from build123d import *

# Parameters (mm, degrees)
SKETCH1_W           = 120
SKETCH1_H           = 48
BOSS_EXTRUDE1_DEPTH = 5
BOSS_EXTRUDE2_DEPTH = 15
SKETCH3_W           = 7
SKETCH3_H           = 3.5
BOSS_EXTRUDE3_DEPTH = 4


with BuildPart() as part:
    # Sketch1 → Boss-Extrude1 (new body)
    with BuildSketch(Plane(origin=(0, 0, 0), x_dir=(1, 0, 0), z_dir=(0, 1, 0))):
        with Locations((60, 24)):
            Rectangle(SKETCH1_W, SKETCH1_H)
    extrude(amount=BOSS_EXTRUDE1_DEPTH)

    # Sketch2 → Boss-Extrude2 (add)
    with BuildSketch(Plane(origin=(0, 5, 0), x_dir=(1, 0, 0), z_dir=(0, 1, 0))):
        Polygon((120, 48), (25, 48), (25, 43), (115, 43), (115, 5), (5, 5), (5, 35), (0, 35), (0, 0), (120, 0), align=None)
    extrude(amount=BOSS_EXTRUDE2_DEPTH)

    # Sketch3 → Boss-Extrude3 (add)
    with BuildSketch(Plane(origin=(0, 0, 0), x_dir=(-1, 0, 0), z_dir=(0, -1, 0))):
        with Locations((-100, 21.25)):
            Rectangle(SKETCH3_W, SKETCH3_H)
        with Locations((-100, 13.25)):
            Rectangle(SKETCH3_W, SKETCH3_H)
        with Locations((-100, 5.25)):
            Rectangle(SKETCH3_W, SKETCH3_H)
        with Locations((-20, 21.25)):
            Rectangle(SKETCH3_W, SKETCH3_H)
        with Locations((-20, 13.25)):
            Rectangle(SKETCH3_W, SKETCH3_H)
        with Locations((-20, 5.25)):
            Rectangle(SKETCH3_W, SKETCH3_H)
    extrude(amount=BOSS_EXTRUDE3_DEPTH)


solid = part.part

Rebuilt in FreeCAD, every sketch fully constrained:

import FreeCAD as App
import Part
import Sketcher


def add_polygon(sketch, points):
    """Adds a closed chain of lines whose ends are joined by coincident constraints."""
    first, n = sketch.GeometryCount, len(points)
    for a, b in zip(points, points[1:] + points[:1]):
        sketch.addGeometry(Part.LineSegment(App.Vector(*a, 0), App.Vector(*b, 0)), False)
    for i in range(n):
        sketch.addConstraint(Sketcher.Constraint("Coincident", first + i, 2, first + (i + 1) % n, 1))

doc = App.newDocument("Part")
body = doc.addObject("PartDesign::Body", "Body")

# Sketch on XZ plane
sketch1 = body.newObject("Sketcher::SketchObject", "Sketch")
sketch1.AttachmentSupport = (doc.getObject("XZ_Plane"), [""])
sketch1.MapMode = "FlatFace"
add_polygon(sketch1, [(0, -48), (0, 0), (120, 0), (120, -48)])  # lines 0-3
sketch1.addConstraint([
    Sketcher.Constraint("Vertical", 0),
    Sketcher.Constraint("Horizontal", 1),
    Sketcher.Constraint("Vertical", 2),
    Sketcher.Constraint("Horizontal", 3),
    Sketcher.Constraint("Coincident", 0, 2, -1, 1),
    Sketcher.Constraint("DistanceX", 1, 1, 1, 2, 120.0),
    Sketcher.Constraint("DistanceY", 0, 1, 0, 2, 48.0),
])
pad1 = body.newObject("PartDesign::Pad", "Pad")
pad1.Profile = sketch1
pad1.Length = 5
pad1.Reversed = True

# Sketch on XZ plane
sketch2 = body.newObject("Sketcher::SketchObject", "Sketch001")
sketch2.AttachmentSupport = (doc.getObject("XZ_Plane"), [""])
sketch2.MapMode = "FlatFace"
sketch2.AttachmentOffset = App.Placement(App.Vector(0, 0, -5), App.Rotation())
add_polygon(sketch2, [(120, -48), (25, -48), (25, -43), (115, -43), (115, -5), (5, -5), (5, -35), (0, -35), (0, 0), (120, 0)])  # lines 0-9
sketch2.addConstraint([
    Sketcher.Constraint("Horizontal", 0),
    Sketcher.Constraint("Vertical", 1),
    Sketcher.Constraint("Horizontal", 2),
    Sketcher.Constraint("Vertical", 3),
    Sketcher.Constraint("Horizontal", 4),
    Sketcher.Constraint("Vertical", 5),
    Sketcher.Constraint("Horizontal", 6),
    Sketcher.Constraint("Vertical", 7),
    Sketcher.Constraint("Horizontal", 8),
    Sketcher.Constraint("Vertical", 9),
    Sketcher.Constraint("Coincident", 7, 2, -1, 1),
    Sketcher.Constraint("Equal", 6, 1),
    Sketcher.Constraint("DistanceX", 0, 2, 0, 1, 95.0),
    Sketcher.Constraint("DistanceX", 2, 1, 2, 2, 90.0),
    Sketcher.Constraint("DistanceX", 4, 2, 4, 1, 110.0),
    Sketcher.Constraint("DistanceX", 6, 2, 6, 1, 5.0),
    Sketcher.Constraint("DistanceY", 3, 1, 3, 2, 38.0),
    Sketcher.Constraint("DistanceY", 5, 2, 5, 1, 30.0),
    Sketcher.Constraint("DistanceY", 7, 1, 7, 2, 35.0),
])
pad2 = body.newObject("PartDesign::Pad", "Pad001")
pad2.Profile = sketch2
pad2.Length = 15
pad2.Reversed = True

# Sketch on XZ plane
sketch3 = body.newObject("Sketcher::SketchObject", "Sketch002")
sketch3.AttachmentSupport = (doc.getObject("XZ_Plane"), [""])
sketch3.MapMode = "FlatFace"
add_polygon(sketch3, [(103.5, -23), (103.5, -19.5), (96.5, -19.5), (96.5, -23)])  # lines 0-3
add_polygon(sketch3, [(103.5, -15), (103.5, -11.5), (96.5, -11.5), (96.5, -15)])  # lines 4-7
add_polygon(sketch3, [(103.5, -7), (103.5, -3.5), (96.5, -3.5), (96.5, -7)])  # lines 8-11
add_polygon(sketch3, [(23.5, -23), (23.5, -19.5), (16.5, -19.5), (16.5, -23)])  # lines 12-15
add_polygon(sketch3, [(23.5, -15), (23.5, -11.5), (16.5, -11.5), (16.5, -15)])  # lines 16-19
add_polygon(sketch3, [(23.5, -7), (23.5, -3.5), (16.5, -3.5), (16.5, -7)])  # lines 20-23
sketch3.addConstraint([
    Sketcher.Constraint("Vertical", 0),
    Sketcher.Constraint("Horizontal", 1),
    Sketcher.Constraint("Vertical", 2),
    Sketcher.Constraint("Horizontal", 3),
    Sketcher.Constraint("Vertical", 4),
    Sketcher.Constraint("Horizontal", 5),
    Sketcher.Constraint("Vertical", 6),
    Sketcher.Constraint("Horizontal", 7),
    Sketcher.Constraint("Vertical", 8),
    Sketcher.Constraint("Horizontal", 9),
    Sketcher.Constraint("Vertical", 10),
    Sketcher.Constraint("Horizontal", 11),
    Sketcher.Constraint("Vertical", 12),
    Sketcher.Constraint("Horizontal", 13),
    Sketcher.Constraint("Vertical", 14),
    Sketcher.Constraint("Horizontal", 15),
    Sketcher.Constraint("Vertical", 16),
    Sketcher.Constraint("Horizontal", 17),
    Sketcher.Constraint("Vertical", 18),
    Sketcher.Constraint("Horizontal", 19),
    Sketcher.Constraint("Vertical", 20),
    Sketcher.Constraint("Horizontal", 21),
    Sketcher.Constraint("Vertical", 22),
    Sketcher.Constraint("Horizontal", 23),
    Sketcher.Constraint("Horizontal", 1, 2, 12, 2),
    Sketcher.Constraint("Horizontal", 3, 2, 14, 2),
    Sketcher.Constraint("Horizontal", 5, 2, 16, 2),
    Sketcher.Constraint("Horizontal", 7, 2, 18, 2),
    Sketcher.Constraint("Horizontal", 9, 2, 20, 2),
    Sketcher.Constraint("Horizontal", 11, 2, 22, 2),
    Sketcher.Constraint("Vertical", 3, 2, 4, 2),
    Sketcher.Constraint("Vertical", 2, 2, 5, 2),
    Sketcher.Constraint("Vertical", 7, 2, 8, 2),
    Sketcher.Constraint("Vertical", 6, 2, 9, 2),
    Sketcher.Constraint("Vertical", 15, 2, 16, 2),
    Sketcher.Constraint("Vertical", 14, 2, 17, 2),
    Sketcher.Constraint("Vertical", 19, 2, 20, 2),
    Sketcher.Constraint("Vertical", 18, 2, 21, 2),
    Sketcher.Constraint("Equal", 11, 13),
    Sketcher.Constraint("Equal", 2, 4),
    Sketcher.Constraint("Equal", 6, 8),
    Sketcher.Constraint("DistanceX", 1, 2, 1, 1, 7.0),
    Sketcher.Constraint("DistanceY", 0, 1, 0, 2, 3.5),
    Sketcher.Constraint("DistanceY", 2, 2, -1, 1, 23.0),
    Sketcher.Constraint("DistanceY", 6, 2, -1, 1, 15.0),
    Sketcher.Constraint("DistanceY", 10, 2, -1, 1, 7.0),
    Sketcher.Constraint("DistanceX", 12, 2, 1, 2, 73.0),
    Sketcher.Constraint("DistanceX", -1, 1, 0, 2, 103.5),
])
pad3 = body.newObject("PartDesign::Pad", "Pad002")
pad3.Profile = sketch3
pad3.Length = 4

doc.recompute()
